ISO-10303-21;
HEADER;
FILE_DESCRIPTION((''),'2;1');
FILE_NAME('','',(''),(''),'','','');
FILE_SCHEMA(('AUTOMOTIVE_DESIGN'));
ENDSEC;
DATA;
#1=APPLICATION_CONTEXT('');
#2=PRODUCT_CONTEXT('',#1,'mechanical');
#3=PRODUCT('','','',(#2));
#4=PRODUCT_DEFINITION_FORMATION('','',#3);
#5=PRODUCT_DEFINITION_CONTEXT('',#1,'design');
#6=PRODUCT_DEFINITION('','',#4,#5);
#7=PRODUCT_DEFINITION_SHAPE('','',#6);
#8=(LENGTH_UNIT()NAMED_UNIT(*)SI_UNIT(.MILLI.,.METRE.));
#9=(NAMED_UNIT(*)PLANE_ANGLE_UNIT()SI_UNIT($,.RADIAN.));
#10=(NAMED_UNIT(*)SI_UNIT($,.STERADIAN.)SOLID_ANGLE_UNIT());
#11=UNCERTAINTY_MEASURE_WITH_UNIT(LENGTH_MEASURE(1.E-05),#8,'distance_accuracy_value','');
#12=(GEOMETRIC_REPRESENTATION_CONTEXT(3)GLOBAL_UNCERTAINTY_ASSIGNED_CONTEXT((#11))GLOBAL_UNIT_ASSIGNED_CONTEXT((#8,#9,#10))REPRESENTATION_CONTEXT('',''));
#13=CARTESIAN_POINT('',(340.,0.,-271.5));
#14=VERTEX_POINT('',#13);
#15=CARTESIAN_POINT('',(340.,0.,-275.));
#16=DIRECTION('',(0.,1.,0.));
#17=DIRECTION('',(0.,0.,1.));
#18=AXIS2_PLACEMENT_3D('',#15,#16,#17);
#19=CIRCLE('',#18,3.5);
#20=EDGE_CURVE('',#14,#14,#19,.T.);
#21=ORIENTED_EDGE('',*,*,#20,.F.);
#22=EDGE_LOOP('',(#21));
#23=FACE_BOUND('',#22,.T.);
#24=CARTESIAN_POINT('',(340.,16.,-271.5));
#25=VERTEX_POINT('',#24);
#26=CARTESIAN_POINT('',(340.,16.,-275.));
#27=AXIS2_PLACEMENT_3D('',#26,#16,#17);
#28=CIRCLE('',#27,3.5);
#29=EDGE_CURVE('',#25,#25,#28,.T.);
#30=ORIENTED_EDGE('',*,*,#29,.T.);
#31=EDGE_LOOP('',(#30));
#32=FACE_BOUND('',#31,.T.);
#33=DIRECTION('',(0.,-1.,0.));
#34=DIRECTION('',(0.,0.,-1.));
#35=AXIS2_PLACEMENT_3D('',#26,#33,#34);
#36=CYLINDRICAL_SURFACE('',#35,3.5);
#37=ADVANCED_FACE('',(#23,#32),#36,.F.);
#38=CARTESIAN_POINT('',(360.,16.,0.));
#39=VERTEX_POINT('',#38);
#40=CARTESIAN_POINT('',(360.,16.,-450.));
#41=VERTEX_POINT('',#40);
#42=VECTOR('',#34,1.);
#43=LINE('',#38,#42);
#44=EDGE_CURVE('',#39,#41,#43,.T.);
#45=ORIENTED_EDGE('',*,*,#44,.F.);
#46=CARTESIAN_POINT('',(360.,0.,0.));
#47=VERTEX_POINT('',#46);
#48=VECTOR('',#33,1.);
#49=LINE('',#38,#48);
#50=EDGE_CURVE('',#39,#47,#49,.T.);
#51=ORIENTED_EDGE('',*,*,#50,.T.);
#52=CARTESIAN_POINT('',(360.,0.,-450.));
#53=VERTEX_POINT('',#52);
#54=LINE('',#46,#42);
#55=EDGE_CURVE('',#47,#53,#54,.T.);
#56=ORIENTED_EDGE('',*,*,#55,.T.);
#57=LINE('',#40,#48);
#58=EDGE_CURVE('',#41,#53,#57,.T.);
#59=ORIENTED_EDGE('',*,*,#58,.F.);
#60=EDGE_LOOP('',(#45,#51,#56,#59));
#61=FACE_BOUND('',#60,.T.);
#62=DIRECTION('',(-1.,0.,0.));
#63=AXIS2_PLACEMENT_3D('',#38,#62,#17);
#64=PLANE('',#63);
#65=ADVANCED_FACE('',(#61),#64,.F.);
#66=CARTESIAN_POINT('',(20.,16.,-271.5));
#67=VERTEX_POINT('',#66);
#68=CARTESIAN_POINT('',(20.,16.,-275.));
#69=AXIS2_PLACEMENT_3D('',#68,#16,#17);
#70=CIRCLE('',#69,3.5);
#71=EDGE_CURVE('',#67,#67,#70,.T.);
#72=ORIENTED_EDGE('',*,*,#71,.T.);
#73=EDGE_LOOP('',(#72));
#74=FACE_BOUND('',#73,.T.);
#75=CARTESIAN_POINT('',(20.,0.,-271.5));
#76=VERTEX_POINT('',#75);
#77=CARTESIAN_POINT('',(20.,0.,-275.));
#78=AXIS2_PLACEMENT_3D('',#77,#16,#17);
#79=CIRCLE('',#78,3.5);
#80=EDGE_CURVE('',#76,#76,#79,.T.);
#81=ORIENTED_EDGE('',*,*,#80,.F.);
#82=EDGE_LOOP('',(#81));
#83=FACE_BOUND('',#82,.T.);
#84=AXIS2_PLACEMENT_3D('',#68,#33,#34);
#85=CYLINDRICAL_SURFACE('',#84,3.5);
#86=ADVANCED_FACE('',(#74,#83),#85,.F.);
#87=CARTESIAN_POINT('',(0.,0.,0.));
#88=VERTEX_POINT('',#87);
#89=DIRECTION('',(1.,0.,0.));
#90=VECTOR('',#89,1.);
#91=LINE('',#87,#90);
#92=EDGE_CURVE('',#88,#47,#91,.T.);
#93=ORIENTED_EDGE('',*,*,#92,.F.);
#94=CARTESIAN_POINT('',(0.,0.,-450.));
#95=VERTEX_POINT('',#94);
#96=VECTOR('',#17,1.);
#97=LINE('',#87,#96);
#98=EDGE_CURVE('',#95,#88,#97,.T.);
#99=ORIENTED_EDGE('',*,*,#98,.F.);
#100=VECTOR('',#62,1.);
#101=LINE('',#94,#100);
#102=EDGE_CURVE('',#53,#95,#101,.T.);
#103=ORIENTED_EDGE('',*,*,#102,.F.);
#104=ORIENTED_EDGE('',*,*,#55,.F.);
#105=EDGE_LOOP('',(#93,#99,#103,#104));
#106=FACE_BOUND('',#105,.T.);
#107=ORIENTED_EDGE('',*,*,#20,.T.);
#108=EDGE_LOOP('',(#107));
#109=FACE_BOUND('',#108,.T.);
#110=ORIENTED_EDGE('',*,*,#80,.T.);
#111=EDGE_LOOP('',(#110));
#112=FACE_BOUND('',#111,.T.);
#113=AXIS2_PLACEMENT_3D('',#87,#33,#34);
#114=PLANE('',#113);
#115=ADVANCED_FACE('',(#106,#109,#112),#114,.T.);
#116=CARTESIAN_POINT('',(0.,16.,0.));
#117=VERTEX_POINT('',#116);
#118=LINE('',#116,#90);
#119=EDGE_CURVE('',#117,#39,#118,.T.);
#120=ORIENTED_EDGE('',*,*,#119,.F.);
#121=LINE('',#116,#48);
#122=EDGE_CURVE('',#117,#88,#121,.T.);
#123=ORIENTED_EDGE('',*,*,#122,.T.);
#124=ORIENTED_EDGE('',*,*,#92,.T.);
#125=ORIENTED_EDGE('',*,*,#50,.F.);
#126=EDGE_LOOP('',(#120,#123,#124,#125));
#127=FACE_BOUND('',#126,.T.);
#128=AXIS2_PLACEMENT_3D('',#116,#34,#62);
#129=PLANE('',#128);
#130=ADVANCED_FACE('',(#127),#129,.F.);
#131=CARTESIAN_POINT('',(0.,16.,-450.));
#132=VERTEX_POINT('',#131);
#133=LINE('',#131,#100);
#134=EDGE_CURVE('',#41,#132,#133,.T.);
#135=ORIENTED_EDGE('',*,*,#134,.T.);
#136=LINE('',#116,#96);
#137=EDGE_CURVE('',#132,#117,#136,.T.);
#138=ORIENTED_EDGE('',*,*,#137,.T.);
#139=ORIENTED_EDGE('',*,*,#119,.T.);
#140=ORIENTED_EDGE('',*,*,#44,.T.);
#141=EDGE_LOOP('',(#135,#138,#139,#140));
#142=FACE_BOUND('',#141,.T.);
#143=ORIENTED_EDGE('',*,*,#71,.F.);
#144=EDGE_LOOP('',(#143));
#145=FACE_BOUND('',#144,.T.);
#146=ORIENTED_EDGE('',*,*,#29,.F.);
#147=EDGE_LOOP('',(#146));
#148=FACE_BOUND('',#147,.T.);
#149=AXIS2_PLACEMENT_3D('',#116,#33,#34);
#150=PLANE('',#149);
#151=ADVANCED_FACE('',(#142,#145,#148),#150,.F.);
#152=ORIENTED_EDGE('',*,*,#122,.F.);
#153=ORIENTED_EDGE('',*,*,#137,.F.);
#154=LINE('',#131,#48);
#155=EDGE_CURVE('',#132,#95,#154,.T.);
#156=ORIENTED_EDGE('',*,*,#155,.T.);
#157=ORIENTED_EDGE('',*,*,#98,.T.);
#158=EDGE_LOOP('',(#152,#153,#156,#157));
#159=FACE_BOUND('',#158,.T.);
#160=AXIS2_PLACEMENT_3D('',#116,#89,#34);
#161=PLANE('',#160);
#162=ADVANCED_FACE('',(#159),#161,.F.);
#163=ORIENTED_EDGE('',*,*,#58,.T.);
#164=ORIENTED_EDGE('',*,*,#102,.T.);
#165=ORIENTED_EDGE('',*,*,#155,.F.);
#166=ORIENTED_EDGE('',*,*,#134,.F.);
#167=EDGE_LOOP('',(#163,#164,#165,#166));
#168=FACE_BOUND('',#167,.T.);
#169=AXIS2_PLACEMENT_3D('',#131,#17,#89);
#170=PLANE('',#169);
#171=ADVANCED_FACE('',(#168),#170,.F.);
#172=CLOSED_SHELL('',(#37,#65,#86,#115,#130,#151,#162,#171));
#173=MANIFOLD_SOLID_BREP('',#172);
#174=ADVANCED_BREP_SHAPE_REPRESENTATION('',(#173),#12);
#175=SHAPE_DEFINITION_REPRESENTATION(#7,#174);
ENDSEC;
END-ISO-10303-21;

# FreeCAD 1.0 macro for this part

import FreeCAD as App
import Part
import Sketcher


def add_polygon(sketch, points):
    """Adds a closed chain of lines whose ends are joined by coincident constraints."""
    first, n = sketch.GeometryCount, len(points)
    for a, b in zip(points, points[1:] + points[:1]):
        sketch.addGeometry(Part.LineSegment(App.Vector(*a, 0), App.Vector(*b, 0)), False)
    for i in range(n):
        sketch.addConstraint(Sketcher.Constraint("Coincident", first + i, 2, first + (i + 1) % n, 1))

doc = App.newDocument("Part")
body = doc.addObject("PartDesign::Body", "Body")

sketch1 = doc.addObject("Sketcher::SketchObject", "Sketch")
body.addObject(sketch1)
sketch1.AttachmentSupport = (doc.XZ_Plane, [""])
sketch1.MapMode = "FlatFace"
add_polygon(sketch1, [(0, -450), (0, 0), (360, 0), (360, -450)])
sketch1.addGeometry(Part.Circle(App.Vector(20, -275, 0), App.Vector(0, 0, 1), 3.5), False)
sketch1.addGeometry(Part.Circle(App.Vector(340, -275, 0), App.Vector(0, 0, 1), 3.5), False)
sketch1.addConstraint([
    Sketcher.Constraint("Vertical", 0),
    Sketcher.Constraint("Horizontal", 1),
    Sketcher.Constraint("Vertical", 2),
    Sketcher.Constraint("Horizontal", 3),
    Sketcher.Constraint("Coincident", 0, 2, -1, 1),
    Sketcher.Constraint("Equal", 4, 5),
    Sketcher.Constraint("Horizontal", 4, 3, 5, 3),
    Sketcher.Constraint("Diameter", 4, 7.0),
    Sketcher.Constraint("DistanceX", 1, 1, 1, 2, 360.0),
    Sketcher.Constraint("DistanceY", 0, 1, 0, 2, 450.0),
    Sketcher.Constraint("DistanceX", -1, 1, 4, 3, 20.0),
    Sketcher.Constraint("DistanceY", 4, 3, -1, 1, 275.0),
    Sketcher.Constraint("DistanceX", -1, 1, 5, 3, 340.0),
])
pad1 = doc.addObject("PartDesign::Pad", "Pad")
body.addObject(pad1)
pad1.Profile = sketch1
pad1.Length = 16
pad1.Reversed = True

doc.recompute()
